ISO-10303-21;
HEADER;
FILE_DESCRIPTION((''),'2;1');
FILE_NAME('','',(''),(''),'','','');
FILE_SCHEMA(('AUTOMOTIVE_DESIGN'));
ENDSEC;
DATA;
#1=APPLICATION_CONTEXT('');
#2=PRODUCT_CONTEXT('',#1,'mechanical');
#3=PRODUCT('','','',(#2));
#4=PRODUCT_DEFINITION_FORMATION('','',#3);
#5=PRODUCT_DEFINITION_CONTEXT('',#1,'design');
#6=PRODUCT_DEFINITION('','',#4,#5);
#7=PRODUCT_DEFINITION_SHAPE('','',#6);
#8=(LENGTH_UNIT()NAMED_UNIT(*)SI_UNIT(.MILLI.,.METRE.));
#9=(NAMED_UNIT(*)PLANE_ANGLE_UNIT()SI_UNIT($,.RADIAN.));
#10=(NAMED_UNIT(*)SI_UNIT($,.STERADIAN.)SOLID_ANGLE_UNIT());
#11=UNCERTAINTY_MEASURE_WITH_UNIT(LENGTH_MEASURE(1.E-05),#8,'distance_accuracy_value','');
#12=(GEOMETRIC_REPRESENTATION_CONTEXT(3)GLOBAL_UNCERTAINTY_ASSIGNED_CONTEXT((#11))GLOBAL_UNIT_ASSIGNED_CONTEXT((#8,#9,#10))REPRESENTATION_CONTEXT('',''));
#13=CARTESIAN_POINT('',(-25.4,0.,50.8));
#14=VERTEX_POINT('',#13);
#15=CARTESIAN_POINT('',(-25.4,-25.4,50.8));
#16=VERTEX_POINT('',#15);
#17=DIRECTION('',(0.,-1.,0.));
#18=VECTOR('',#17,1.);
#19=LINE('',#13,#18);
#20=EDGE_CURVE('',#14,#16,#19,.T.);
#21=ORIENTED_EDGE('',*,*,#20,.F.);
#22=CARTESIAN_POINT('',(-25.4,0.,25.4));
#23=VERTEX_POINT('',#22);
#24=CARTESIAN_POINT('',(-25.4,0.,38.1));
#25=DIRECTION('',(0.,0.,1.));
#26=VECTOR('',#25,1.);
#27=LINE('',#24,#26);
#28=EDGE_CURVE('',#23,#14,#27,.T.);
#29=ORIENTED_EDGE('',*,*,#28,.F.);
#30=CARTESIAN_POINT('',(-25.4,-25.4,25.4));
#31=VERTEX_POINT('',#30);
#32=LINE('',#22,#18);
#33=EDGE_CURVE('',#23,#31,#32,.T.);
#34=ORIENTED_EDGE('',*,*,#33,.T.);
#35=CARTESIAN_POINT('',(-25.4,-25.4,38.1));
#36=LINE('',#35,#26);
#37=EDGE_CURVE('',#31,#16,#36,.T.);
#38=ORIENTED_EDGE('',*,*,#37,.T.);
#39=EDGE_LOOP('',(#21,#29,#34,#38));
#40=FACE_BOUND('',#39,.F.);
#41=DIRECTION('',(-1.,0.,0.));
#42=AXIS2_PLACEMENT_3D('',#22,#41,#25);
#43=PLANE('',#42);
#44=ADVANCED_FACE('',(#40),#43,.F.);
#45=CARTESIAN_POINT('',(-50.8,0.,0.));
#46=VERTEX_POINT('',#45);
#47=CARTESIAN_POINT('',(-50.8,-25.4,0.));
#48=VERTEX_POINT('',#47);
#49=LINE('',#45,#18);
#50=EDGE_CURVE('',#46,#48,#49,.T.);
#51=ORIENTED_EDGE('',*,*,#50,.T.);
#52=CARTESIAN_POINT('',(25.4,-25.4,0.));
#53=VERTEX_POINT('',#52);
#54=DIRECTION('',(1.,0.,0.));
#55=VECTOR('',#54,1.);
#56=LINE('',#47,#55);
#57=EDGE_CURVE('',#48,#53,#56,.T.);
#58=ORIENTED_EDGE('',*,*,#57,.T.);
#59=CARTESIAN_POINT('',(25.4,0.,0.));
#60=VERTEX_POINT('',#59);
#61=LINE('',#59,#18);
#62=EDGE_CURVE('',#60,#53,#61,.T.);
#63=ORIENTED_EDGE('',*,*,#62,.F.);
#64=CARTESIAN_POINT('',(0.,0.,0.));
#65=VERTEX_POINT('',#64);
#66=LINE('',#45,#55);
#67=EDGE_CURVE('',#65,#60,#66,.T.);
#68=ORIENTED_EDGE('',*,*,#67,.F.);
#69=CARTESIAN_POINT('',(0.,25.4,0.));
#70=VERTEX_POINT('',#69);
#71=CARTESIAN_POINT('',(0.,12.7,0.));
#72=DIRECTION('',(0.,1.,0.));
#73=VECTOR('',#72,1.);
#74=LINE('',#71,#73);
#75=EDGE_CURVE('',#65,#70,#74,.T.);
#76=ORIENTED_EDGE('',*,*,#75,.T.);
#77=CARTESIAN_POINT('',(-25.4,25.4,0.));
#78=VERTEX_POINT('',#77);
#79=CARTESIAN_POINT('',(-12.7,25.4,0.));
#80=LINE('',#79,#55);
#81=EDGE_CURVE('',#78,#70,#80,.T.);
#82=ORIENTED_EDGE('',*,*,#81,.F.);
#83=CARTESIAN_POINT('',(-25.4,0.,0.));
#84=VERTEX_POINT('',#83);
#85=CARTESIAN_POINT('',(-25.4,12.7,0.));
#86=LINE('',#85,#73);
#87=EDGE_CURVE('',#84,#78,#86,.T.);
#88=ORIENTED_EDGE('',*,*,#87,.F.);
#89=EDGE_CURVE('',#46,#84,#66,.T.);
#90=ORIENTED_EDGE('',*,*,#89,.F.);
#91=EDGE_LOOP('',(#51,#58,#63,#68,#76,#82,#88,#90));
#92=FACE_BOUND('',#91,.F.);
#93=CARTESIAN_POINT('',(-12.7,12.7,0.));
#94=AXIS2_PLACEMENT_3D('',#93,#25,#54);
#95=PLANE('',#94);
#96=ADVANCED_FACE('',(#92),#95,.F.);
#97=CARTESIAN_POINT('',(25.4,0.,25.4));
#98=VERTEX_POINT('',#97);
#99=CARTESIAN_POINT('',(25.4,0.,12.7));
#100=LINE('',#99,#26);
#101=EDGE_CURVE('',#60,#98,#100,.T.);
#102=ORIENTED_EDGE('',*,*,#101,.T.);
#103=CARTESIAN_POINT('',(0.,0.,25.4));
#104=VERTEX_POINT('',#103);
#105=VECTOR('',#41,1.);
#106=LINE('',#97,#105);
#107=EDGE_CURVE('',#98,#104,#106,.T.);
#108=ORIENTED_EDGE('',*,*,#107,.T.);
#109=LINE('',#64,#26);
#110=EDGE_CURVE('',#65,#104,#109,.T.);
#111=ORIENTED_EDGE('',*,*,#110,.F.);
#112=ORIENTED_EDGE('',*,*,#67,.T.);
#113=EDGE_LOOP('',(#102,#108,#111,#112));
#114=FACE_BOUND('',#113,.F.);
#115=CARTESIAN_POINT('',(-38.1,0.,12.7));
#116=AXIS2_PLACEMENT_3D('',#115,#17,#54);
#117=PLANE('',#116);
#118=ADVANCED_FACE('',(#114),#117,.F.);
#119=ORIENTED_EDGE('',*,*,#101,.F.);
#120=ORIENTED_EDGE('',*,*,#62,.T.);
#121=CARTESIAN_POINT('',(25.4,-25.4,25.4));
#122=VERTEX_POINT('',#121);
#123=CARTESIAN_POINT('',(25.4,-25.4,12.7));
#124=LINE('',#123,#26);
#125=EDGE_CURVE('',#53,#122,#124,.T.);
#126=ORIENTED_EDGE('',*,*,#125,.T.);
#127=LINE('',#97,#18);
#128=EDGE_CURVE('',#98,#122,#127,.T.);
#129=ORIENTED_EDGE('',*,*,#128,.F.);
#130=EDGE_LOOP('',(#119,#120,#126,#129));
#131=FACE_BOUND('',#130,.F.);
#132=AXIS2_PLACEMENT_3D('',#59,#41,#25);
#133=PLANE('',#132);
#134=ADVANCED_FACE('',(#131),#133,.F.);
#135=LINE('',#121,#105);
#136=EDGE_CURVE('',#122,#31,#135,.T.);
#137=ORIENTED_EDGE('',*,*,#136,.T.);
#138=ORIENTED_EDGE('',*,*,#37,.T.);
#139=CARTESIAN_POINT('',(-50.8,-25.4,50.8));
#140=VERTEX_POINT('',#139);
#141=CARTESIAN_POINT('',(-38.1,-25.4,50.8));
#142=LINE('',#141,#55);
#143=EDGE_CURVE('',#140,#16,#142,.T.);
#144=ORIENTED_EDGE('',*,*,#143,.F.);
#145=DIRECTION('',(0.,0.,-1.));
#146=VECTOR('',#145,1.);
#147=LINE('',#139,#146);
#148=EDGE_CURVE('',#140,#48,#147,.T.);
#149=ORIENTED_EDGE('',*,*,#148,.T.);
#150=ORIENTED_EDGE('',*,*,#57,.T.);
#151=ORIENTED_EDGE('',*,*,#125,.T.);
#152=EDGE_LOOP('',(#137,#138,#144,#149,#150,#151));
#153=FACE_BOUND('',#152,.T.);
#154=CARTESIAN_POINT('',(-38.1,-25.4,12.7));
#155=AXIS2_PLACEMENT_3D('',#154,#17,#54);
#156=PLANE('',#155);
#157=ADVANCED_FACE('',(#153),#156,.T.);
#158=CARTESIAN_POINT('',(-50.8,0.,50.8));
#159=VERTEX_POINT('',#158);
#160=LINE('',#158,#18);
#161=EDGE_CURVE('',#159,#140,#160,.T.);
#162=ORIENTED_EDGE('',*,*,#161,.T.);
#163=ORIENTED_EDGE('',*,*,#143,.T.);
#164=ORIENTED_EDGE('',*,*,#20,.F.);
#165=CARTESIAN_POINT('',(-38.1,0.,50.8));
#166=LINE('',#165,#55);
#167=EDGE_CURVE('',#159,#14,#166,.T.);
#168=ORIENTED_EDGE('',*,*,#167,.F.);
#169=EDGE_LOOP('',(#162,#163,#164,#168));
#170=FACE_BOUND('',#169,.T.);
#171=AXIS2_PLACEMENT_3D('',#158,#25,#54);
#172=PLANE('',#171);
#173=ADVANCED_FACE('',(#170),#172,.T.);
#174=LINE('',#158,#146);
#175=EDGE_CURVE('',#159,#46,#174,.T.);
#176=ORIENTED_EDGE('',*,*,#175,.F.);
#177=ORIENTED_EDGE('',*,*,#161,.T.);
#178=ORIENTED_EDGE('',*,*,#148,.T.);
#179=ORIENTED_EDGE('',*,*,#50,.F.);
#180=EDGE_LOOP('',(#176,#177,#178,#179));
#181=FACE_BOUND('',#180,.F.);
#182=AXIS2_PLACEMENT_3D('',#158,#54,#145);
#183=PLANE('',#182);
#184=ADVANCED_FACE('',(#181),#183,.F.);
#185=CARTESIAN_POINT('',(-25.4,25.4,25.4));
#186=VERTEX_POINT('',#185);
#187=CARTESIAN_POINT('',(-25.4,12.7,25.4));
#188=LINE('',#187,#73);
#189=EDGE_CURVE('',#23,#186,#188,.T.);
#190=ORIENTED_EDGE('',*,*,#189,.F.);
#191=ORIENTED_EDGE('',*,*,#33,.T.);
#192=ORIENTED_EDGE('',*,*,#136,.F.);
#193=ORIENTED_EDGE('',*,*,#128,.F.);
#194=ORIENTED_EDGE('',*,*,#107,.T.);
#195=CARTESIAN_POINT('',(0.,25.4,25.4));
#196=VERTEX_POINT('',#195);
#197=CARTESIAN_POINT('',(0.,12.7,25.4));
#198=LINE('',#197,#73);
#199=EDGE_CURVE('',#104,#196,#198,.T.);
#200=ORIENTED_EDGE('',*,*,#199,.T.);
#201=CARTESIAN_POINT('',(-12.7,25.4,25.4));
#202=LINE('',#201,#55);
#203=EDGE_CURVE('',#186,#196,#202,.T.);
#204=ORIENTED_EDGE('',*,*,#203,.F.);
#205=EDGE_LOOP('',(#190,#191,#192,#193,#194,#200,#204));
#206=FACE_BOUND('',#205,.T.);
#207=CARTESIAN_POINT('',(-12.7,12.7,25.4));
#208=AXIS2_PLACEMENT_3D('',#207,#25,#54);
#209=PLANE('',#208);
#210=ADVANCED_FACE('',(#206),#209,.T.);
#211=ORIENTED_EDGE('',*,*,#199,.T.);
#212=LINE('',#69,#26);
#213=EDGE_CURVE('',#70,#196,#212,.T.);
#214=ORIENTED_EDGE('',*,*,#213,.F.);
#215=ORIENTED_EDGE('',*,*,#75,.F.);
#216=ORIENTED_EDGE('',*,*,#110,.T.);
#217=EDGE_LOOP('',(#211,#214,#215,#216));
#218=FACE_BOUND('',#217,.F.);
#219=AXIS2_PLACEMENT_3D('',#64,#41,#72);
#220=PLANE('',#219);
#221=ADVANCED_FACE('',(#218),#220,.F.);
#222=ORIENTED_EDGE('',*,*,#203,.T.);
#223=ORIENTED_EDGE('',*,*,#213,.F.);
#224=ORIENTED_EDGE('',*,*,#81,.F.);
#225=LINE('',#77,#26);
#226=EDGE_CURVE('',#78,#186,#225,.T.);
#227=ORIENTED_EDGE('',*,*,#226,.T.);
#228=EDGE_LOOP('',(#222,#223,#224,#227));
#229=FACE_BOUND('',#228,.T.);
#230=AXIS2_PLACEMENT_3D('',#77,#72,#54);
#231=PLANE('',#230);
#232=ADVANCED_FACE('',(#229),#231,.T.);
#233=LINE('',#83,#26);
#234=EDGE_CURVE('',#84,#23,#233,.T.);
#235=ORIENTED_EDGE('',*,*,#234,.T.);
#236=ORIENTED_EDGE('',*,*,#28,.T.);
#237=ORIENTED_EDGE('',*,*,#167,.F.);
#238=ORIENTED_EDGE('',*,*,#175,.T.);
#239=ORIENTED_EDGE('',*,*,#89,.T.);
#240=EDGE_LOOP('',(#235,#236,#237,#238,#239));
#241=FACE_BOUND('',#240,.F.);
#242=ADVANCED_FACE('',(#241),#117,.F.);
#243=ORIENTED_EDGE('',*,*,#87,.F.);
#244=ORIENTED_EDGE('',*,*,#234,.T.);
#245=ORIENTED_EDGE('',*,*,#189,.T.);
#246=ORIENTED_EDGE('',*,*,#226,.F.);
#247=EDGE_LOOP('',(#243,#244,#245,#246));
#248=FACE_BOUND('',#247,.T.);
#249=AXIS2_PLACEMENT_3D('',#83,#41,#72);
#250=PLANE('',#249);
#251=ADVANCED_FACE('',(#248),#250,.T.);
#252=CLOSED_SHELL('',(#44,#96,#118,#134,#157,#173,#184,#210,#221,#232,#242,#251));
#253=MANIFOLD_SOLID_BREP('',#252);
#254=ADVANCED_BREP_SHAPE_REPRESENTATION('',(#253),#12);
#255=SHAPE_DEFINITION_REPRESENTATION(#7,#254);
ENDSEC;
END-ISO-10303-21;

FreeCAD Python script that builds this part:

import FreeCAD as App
import Part
import Sketcher
Q = App.Units.Quantity


def add_polygon(sketch, points):
    """Adds a closed chain of lines whose ends are joined by coincident constraints."""
    first, n = sketch.GeometryCount, len(points)
    for a, b in zip(points, points[1:] + points[:1]):
        sketch.addGeometry(Part.LineSegment(App.Vector(*a, 0), App.Vector(*b, 0)), False)
    for i in range(n):
        sketch.addConstraint(Sketcher.Constraint("Coincident", first + i, 2, first + (i + 1) % n, 1))

doc = App.newDocument("Part")
body = doc.addObject("PartDesign::Body", "Body")

# Sketch on XZ plane
sketch1 = doc.addObject("Sketcher::SketchObject", "Sketch")
body.addObject(sketch1)
sketch1.AttachmentSupport = (doc.XZ_Plane, [""])
sketch1.MapMode = "FlatFace"
add_polygon(sketch1, [(-50.8, 0), (25.4, 0), (25.4, 25.4), (-25.4, 25.4), (-25.4, 50.8), (-50.8, 50.8)])  # lines 0-5
sketch1.addConstraint([
    Sketcher.Constraint("Horizontal", 0),
    Sketcher.Constraint("Vertical", 1),
    Sketcher.Constraint("Horizontal", 2),
    Sketcher.Constraint("Vertical", 3),
    Sketcher.Constraint("Horizontal", 4),
    Sketcher.Constraint("Vertical", 5),
    Sketcher.Constraint("PointOnObject", 0, 2, -1),
    Sketcher.Constraint("Equal", 4, 1),
    Sketcher.Constraint("Equal", 1, 3),
    Sketcher.Constraint("Equal", 2, 5),
    Sketcher.Constraint("DistanceX", 0, 1, 0, 2, Q("3 in")),
    Sketcher.Constraint("DistanceX", -1, 1, 0, 2, Q("1 in")),
])
pad1 = doc.addObject("PartDesign::Pad", "Pad")
body.addObject(pad1)
pad1.Profile = sketch1
pad1.Length = Q("1 in")

# Sketch on XY plane
sketch2 = doc.addObject("Sketcher::SketchObject", "Sketch001")
body.addObject(sketch2)
sketch2.AttachmentSupport = (doc.XY_Plane, [""])
sketch2.MapMode = "FlatFace"
add_polygon(sketch2, [(-25.4, 25.4), (-25.4, 0), (0, 0), (0, 25.4)])  # lines 0-3
sketch2.addConstraint([
    Sketcher.Constraint("Vertical", 0),
    Sketcher.Constraint("Horizontal", 1),
    Sketcher.Constraint("Vertical", 2),
    Sketcher.Constraint("Horizontal", 3),
    Sketcher.Constraint("Coincident", 1, 2, -1, 1),
    Sketcher.Constraint("Equal", 3, 0),
    Sketcher.Constraint("DistanceX", 1, 1, 1, 2, Q("1 in")),
])
pad2 = doc.addObject("PartDesign::Pad", "Pad001")
body.addObject(pad2)
pad2.Profile = sketch2
pad2.Length = Q("1 in")

doc.recompute()
